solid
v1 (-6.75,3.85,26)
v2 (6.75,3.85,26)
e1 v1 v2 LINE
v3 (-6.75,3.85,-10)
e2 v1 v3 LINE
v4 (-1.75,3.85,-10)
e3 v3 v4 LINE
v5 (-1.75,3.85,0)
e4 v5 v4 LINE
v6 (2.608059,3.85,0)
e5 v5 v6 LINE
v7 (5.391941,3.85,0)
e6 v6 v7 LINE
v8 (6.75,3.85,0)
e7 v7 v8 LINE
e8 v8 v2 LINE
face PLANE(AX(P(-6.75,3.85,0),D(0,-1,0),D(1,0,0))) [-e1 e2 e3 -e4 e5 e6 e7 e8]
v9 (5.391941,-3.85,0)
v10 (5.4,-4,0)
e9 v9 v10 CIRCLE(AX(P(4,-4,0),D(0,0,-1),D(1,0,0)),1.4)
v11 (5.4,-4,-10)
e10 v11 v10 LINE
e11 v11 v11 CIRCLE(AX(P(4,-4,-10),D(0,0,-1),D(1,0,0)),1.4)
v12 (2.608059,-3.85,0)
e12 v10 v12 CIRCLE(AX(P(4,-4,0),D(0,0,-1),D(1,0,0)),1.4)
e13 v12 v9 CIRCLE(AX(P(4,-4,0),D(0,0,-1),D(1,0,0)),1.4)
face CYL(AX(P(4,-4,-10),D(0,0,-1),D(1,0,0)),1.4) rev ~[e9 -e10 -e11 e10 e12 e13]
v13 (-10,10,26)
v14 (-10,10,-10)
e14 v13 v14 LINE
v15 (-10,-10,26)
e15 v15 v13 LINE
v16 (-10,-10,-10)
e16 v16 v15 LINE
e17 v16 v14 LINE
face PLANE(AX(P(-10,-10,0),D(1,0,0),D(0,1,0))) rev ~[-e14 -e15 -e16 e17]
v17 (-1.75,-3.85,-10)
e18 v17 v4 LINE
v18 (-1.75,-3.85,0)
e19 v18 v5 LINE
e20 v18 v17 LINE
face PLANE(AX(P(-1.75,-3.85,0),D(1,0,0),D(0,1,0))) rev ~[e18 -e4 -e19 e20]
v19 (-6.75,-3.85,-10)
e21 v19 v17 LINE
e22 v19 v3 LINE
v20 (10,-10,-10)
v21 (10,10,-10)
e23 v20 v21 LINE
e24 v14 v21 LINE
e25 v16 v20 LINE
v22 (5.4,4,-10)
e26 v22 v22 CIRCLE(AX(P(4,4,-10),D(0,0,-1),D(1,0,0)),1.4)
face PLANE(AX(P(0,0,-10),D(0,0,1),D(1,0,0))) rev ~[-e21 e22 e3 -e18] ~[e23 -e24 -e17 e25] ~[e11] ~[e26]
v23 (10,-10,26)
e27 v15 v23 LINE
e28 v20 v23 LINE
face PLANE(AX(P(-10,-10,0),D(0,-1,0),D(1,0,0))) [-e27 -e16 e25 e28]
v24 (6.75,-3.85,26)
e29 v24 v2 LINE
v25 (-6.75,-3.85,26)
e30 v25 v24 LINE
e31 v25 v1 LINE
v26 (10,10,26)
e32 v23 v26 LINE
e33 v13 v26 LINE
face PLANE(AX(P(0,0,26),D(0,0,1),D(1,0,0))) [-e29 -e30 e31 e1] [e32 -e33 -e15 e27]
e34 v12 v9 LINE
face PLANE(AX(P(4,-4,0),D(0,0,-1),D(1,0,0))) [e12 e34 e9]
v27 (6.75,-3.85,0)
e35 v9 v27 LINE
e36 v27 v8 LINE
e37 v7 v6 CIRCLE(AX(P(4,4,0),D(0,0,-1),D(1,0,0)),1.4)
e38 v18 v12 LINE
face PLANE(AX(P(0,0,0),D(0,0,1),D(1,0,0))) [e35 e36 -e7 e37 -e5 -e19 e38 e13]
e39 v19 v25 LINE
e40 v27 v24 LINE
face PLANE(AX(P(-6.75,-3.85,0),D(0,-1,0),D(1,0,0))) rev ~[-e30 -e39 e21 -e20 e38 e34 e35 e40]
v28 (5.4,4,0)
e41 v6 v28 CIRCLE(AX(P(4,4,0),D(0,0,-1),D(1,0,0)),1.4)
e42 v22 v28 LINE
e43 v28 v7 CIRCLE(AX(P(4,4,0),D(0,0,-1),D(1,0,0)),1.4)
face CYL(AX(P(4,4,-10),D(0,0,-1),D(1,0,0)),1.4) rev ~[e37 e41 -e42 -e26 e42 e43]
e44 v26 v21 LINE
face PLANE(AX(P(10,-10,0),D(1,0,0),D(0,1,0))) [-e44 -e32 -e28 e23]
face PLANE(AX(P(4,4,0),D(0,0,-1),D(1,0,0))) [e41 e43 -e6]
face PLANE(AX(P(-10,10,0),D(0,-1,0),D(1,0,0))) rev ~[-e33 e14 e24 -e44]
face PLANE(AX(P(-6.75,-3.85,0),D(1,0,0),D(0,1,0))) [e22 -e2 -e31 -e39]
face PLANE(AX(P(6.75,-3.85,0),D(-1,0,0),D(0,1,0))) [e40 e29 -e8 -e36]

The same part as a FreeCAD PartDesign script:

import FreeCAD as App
import Part
import Sketcher


def add_polygon(sketch, points):
    """Adds a closed chain of lines whose ends are joined by coincident constraints."""
    first, n = sketch.GeometryCount, len(points)
    for a, b in zip(points, points[1:] + points[:1]):
        sketch.addGeometry(Part.LineSegment(App.Vector(*a, 0), App.Vector(*b, 0)), False)
    for i in range(n):
        sketch.addConstraint(Sketcher.Constraint("Coincident", first + i, 2, first + (i + 1) % n, 1))

doc = App.newDocument("Part")
body = doc.addObject("PartDesign::Body", "Body")

# Sketch on XY plane
sketch1 = body.newObject("Sketcher::SketchObject", "Sketch")
sketch1.AttachmentSupport = (doc.getObject("XY_Plane"), [""])
sketch1.MapMode = "FlatFace"
add_polygon(sketch1, [(-10, 10), (-10, -10), (10, -10), (10, 10)])  # lines 0-3
add_polygon(sketch1, [(7, -4), (-7, -4), (-7, 4), (7, 4)])  # lines 4-7
sketch1.addConstraint([
    Sketcher.Constraint("Vertical", 0),
    Sketcher.Constraint("Horizontal", 1),
    Sketcher.Constraint("Vertical", 2),
    Sketcher.Constraint("Horizontal", 3),
    Sketcher.Constraint("Horizontal", 4),
    Sketcher.Constraint("Vertical", 5),
    Sketcher.Constraint("Horizontal", 6),
    Sketcher.Constraint("Vertical", 7),
    Sketcher.Constraint("Symmetric", 0, 2, 2, 2, -1, 1),
    Sketcher.Constraint("Symmetric", 4, 2, 6, 2, -1, 1),
    Sketcher.Constraint("Equal", 3, 0),
    Sketcher.Constraint("DistanceX", 1, 1, 1, 2, 20.0),
    Sketcher.Constraint("DistanceX", 4, 2, 4, 1, 13.5),
    Sketcher.Constraint("DistanceY", 5, 1, 5, 2, 7.7),
])
pad1 = body.newObject("PartDesign::Pad", "Pad")
pad1.Profile = sketch1
pad1.Length = 26

# Sketch on XY plane
sketch2 = body.newObject("Sketcher::SketchObject", "Sketch001")
sketch2.AttachmentSupport = (doc.getObject("XY_Plane"), [""])
sketch2.MapMode = "FlatFace"
add_polygon(sketch2, [(-10, 10), (-10, -10), (10, -10), (10, 10)])  # lines 0-3
add_polygon(sketch2, [(-2, -4), (-7, -4), (-7, 4), (-2, 4)])  # lines 4-7
sketch2.addConstraint([
    Sketcher.Constraint("Vertical", 0),
    Sketcher.Constraint("Horizontal", 1),
    Sketcher.Constraint("Vertical", 2),
    Sketcher.Constraint("Horizontal", 3),
    Sketcher.Constraint("Horizontal", 4),
    Sketcher.Constraint("Vertical", 5),
    Sketcher.Constraint("Horizontal", 6),
    Sketcher.Constraint("Vertical", 7),
    Sketcher.Constraint("Symmetric", 0, 2, 2, 2, -1, 1),
    Sketcher.Constraint("Equal", 3, 0),
    Sketcher.Constraint("DistanceX", 1, 1, 1, 2, 20.0),
    Sketcher.Constraint("DistanceX", 4, 2, 4, 1, 5.0),
    Sketcher.Constraint("DistanceY", 5, 1, 5, 2, 7.7),
    Sketcher.Constraint("DistanceX", 4, 2, -1, 1, 6.75),
    Sketcher.Constraint("DistanceY", 4, 2, -1, 1, 3.85),
])
pad2 = body.newObject("PartDesign::Pad", "Pad001")
pad2.Profile = sketch2
pad2.Length = 10
pad2.Reversed = True

# Sketch on XY plane
sketch3 = body.newObject("Sketcher::SketchObject", "Sketch002")
sketch3.AttachmentSupport = (doc.getObject("XY_Plane"), [""])
sketch3.MapMode = "FlatFace"
sketch3.AttachmentOffset = App.Placement(App.Vector(0, 0, -10), App.Rotation())
sketch3.addGeometry([
    Part.Circle(App.Vector(4, -4, 0), App.Vector(0, 0, 1), 1.4),
    Part.Circle(App.Vector(4, 4, 0), App.Vector(0, 0, 1), 1.4),
], False)
sketch3.addConstraint([
    Sketcher.Constraint("Equal", 0, 1),
    Sketcher.Constraint("Symmetric", 0, 3, 1, 3, -1),
    Sketcher.Constraint("Diameter", 0, 2.8),
    Sketcher.Constraint("DistanceX", -1, 1, 0, 3, 4.0),
    Sketcher.Constraint("DistanceY", 0, 3, -1, 1, 4.0),
])
pocket1 = body.newObject("PartDesign::Pocket", "Pocket")
pocket1.Profile = sketch3
pocket1.Length = 10
pocket1.Reversed = True

doc.recompute()
